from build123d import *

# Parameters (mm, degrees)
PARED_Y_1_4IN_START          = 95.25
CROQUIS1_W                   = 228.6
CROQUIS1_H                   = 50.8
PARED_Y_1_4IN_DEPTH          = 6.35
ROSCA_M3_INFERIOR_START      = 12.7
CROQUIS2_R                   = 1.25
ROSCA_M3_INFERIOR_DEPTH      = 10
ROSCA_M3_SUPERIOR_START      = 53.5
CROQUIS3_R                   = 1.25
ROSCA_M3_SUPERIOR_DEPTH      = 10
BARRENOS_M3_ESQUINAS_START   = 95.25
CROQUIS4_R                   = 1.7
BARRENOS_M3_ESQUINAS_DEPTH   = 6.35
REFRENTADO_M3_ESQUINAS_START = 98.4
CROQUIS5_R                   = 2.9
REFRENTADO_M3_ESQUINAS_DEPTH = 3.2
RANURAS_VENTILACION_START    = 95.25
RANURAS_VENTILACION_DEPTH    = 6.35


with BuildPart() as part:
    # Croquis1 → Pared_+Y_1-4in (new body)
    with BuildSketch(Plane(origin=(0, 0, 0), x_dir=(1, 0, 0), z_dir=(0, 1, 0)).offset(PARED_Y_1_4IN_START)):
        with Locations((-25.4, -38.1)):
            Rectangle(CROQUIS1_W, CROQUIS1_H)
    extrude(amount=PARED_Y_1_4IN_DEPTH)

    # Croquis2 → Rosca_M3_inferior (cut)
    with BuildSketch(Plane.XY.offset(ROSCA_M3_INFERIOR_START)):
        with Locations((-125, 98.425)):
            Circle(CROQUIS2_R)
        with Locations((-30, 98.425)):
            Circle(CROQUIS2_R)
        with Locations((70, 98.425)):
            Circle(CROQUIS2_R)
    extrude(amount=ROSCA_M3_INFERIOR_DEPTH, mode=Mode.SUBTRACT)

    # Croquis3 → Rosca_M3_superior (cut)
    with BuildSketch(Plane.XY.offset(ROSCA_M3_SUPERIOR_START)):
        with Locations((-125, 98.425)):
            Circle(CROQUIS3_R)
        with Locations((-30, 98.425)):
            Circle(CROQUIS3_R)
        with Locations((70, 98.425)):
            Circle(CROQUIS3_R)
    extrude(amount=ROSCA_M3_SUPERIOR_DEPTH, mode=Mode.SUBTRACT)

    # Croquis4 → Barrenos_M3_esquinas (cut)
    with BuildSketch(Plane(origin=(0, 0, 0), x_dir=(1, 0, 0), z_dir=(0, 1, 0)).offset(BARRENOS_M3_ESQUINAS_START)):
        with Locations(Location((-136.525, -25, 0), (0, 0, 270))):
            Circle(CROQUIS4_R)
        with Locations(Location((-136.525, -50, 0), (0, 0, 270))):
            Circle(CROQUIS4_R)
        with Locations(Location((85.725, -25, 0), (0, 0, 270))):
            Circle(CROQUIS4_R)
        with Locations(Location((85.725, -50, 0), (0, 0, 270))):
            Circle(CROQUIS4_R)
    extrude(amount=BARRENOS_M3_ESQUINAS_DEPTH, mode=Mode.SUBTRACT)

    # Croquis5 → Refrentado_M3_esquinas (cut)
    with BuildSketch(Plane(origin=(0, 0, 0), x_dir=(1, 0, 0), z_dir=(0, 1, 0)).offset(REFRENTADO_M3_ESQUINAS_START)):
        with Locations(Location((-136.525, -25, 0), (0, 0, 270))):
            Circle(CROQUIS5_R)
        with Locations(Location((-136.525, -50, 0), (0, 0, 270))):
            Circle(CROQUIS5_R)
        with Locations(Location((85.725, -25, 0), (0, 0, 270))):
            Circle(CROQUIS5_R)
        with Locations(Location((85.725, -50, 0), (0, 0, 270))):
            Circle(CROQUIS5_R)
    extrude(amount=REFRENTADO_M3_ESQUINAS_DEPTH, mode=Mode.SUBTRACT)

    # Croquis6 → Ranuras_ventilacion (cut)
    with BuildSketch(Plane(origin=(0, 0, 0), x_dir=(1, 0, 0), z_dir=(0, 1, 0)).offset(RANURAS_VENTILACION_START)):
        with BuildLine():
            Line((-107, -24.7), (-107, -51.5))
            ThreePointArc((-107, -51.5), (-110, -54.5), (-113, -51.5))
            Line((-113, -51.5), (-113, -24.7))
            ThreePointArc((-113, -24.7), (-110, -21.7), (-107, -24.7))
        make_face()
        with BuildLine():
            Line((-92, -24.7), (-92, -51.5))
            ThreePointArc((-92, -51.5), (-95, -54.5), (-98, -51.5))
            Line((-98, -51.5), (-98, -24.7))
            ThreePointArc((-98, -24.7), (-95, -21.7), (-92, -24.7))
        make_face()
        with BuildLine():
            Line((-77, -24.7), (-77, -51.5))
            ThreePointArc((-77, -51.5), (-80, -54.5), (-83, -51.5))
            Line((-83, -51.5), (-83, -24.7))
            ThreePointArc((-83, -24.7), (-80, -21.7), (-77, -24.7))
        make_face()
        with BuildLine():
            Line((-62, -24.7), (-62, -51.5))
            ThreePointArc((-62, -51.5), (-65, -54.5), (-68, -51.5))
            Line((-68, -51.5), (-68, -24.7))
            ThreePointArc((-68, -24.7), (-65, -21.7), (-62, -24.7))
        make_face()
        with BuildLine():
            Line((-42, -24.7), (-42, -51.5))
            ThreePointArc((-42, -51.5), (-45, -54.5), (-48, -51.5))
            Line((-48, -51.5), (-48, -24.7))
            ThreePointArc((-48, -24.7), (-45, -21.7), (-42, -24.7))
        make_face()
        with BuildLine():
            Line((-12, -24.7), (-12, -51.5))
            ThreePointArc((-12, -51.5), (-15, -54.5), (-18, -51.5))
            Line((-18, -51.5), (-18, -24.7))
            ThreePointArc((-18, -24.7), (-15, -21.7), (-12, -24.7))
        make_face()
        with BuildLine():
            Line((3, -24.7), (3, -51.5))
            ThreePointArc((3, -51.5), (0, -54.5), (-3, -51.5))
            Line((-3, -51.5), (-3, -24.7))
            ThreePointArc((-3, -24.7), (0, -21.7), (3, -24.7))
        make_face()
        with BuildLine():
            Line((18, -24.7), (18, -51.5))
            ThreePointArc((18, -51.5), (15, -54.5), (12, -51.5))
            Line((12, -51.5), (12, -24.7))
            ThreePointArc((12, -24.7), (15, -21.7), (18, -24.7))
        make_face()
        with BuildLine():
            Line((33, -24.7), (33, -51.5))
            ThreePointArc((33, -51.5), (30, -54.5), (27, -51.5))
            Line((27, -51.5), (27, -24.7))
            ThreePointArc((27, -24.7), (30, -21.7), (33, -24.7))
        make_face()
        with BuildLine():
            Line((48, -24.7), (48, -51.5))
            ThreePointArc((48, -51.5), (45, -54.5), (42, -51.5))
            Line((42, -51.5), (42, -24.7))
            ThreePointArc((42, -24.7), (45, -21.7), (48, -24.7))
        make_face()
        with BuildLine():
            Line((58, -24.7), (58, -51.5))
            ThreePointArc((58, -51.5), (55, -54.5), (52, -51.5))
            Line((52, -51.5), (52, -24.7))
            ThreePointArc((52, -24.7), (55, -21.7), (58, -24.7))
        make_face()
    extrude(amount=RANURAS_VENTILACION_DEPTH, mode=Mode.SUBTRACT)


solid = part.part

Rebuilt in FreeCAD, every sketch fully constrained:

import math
import FreeCAD as App
import Part
import Sketcher
Q = App.Units.Quantity

doc = App.newDocument("Part")
params = doc.addObject("Spreadsheet::Sheet", "Params")
for row, (alias, value) in enumerate([
    ("sketch1_width", "228.6 mm"),
    ("sketch1_height", "50.8 mm"),
    ("pad1_length", "6.35 mm"),
    ("sketch2_diameter", "2.5 mm"),
    ("pocket1_length", "10 mm"),
    ("sketch3_diameter", "2.5 mm"),
    ("pocket2_length", "10 mm"),
    ("sketch4_diameter", "3.4 mm"),
    ("pocket3_length", "6.35 mm"),
    ("sketch5_diameter", "5.8 mm"),
    ("pocket4_length", "3.2 mm"),
    ("sketch6_radius", "3 mm"),
    ("sketch6_height", "26.8 mm"),
    ("pocket5_length", "6.35 mm"),
], start=1):
    params.set(f"A{row}", alias)
    params.set(f"B{row}", "=" + value)
    params.setAlias(f"B{row}", alias)

body = doc.addObject("PartDesign::Body", "Body")

# Sketch on XZ plane
sketch1 = body.newObject("Sketcher::SketchObject", "Sketch")
sketch1.AttachmentSupport = (doc.getObject("XZ_Plane"), [""])
sketch1.MapMode = "FlatFace"
sketch1.AttachmentOffset = App.Placement(App.Vector(0, 0, -95.25), App.Rotation())
sketch1.addGeometry([
    Part.LineSegment(App.Vector(-140, 13, 0), App.Vector(-140, 64, 0)),
    Part.LineSegment(App.Vector(-140, 64, 0), App.Vector(89, 64, 0)),
    Part.LineSegment(App.Vector(89, 64, 0), App.Vector(89, 13, 0)),
    Part.LineSegment(App.Vector(89, 13, 0), App.Vector(-140, 13, 0)),
], False)
sketch1.addConstraint([
    Sketcher.Constraint("Coincident", 0, 2, 1, 1),
    Sketcher.Constraint("Coincident", 1, 2, 2, 1),
    Sketcher.Constraint("Coincident", 2, 2, 3, 1),
    Sketcher.Constraint("Coincident", 3, 2, 0, 1),
    Sketcher.Constraint("Vertical", 0),
    Sketcher.Constraint("Horizontal", 1),
    Sketcher.Constraint("Vertical", 2),
    Sketcher.Constraint("Horizontal", 3),
    Sketcher.Constraint("DistanceX", 1, 1, 1, 2, Q("228.6 mm")),
    Sketcher.Constraint("DistanceY", 0, 1, 0, 2, Q("50.8 mm")),
    Sketcher.Constraint("DistanceX", 0, 2, -1, 1, Q("139.7 mm")),
    Sketcher.Constraint("DistanceY", -1, 1, 0, 2, Q("63.5 mm")),
])
sketch1.setExpression("Constraints[8]", "Params.sketch1_width")
sketch1.setExpression("Constraints[9]", "Params.sketch1_height")
pad1 = body.newObject("PartDesign::Pad", "Pad")
pad1.Profile = sketch1
pad1.setExpression("Length", "Params.pad1_length")
pad1.Reversed = True

# Sketch on XY plane
sketch2 = body.newObject("Sketcher::SketchObject", "Sketch001")
sketch2.AttachmentSupport = (doc.getObject("XY_Plane"), [""])
sketch2.MapMode = "FlatFace"
sketch2.AttachmentOffset = App.Placement(App.Vector(0, 0, 12.7), App.Rotation())
sketch2.addGeometry([
    Part.Circle(App.Vector(-125, 98.4, 0), App.Vector(0, 0, 1), 1.2),
    Part.Circle(App.Vector(-30, 98.4, 0), App.Vector(0, 0, 1), 1.2),
    Part.Circle(App.Vector(70, 98.4, 0), App.Vector(0, 0, 1), 1.2),
], False)
sketch2.addConstraint([
    Sketcher.Constraint("Equal", 0, 1),
    Sketcher.Constraint("Equal", 1, 2),
    Sketcher.Constraint("Horizontal", 0, 3, 1, 3),
    Sketcher.Constraint("Horizontal", 1, 3, 2, 3),
    Sketcher.Constraint("Diameter", 0, Q("2.5 mm")),
    Sketcher.Constraint("DistanceX", 0, 3, -1, 1, Q("125 mm")),
    Sketcher.Constraint("DistanceX", 1, 3, -1, 1, Q("30 mm")),
    Sketcher.Constraint("DistanceX", -1, 1, 2, 3, Q("70 mm")),
    Sketcher.Constraint("DistanceY", -1, 1, 0, 3, Q("98.425 mm")),
])
sketch2.setExpression("Constraints[4]", "Params.sketch2_diameter")
pocket1 = body.newObject("PartDesign::Pocket", "Pocket")
pocket1.Profile = sketch2
pocket1.setExpression("Length", "Params.pocket1_length")
pocket1.Reversed = True

# Sketch on XY plane
sketch3 = body.newObject("Sketcher::SketchObject", "Sketch002")
sketch3.AttachmentSupport = (doc.getObject("XY_Plane"), [""])
sketch3.MapMode = "FlatFace"
sketch3.AttachmentOffset = App.Placement(App.Vector(0, 0, 53.5), App.Rotation())
sketch3.addGeometry([
    Part.Circle(App.Vector(-125, 98.4, 0), App.Vector(0, 0, 1), 1.2),
    Part.Circle(App.Vector(-30, 98.4, 0), App.Vector(0, 0, 1), 1.2),
    Part.Circle(App.Vector(70, 98.4, 0), App.Vector(0, 0, 1), 1.2),
], False)
sketch3.addConstraint([
    Sketcher.Constraint("Equal", 0, 1),
    Sketcher.Constraint("Equal", 1, 2),
    Sketcher.Constraint("Horizontal", 0, 3, 1, 3),
    Sketcher.Constraint("Horizontal", 1, 3, 2, 3),
    Sketcher.Constraint("Diameter", 0, Q("2.5 mm")),
    Sketcher.Constraint("DistanceX", 0, 3, -1, 1, Q("125 mm")),
    Sketcher.Constraint("DistanceX", 1, 3, -1, 1, Q("30 mm")),
    Sketcher.Constraint("DistanceX", -1, 1, 2, 3, Q("70 mm")),
    Sketcher.Constraint("DistanceY", -1, 1, 0, 3, Q("98.425 mm")),
])
sketch3.setExpression("Constraints[4]", "Params.sketch3_diameter")
pocket2 = body.newObject("PartDesign::Pocket", "Pocket001")
pocket2.Profile = sketch3
pocket2.setExpression("Length", "Params.pocket2_length")
pocket2.Reversed = True

# Sketch on XZ plane
sketch4 = body.newObject("Sketcher::SketchObject", "Sketch003")
sketch4.AttachmentSupport = (doc.getObject("XZ_Plane"), [""])
sketch4.MapMode = "FlatFace"
sketch4.AttachmentOffset = App.Placement(App.Vector(0, 0, -95.25), App.Rotation())
sketch4.addGeometry([
    Part.Circle(App.Vector(-136.5, 25, 0), App.Vector(0, 0, 1), 1.7),
    Part.Circle(App.Vector(-136.5, 50, 0), App.Vector(0, 0, 1), 1.7),
    Part.Circle(App.Vector(85.7, 25, 0), App.Vector(0, 0, 1), 1.7),
    Part.Circle(App.Vector(85.7, 50, 0), App.Vector(0, 0, 1), 1.7),
], False)
sketch4.addConstraint([
    Sketcher.Constraint("Equal", 0, 1),
    Sketcher.Constraint("Equal", 1, 2),
    Sketcher.Constraint("Equal", 2, 3),
    Sketcher.Constraint("Horizontal", 0, 3, 2, 3),
    Sketcher.Constraint("Horizontal", 1, 3, 3, 3),
    Sketcher.Constraint("Vertical", 0, 3, 1, 3),
    Sketcher.Constraint("Vertical", 2, 3, 3, 3),
    Sketcher.Constraint("Diameter", 0, Q("3.4 mm")),
    Sketcher.Constraint("DistanceY", -1, 1, 0, 3, Q("25 mm")),
    Sketcher.Constraint("DistanceY", -1, 1, 1, 3, Q("50 mm")),
    Sketcher.Constraint("DistanceX", 0, 3, 2, 3, Q("222.25 mm")),
    Sketcher.Constraint("DistanceX", 0, 3, -1, 1, Q("136.525 mm")),
])
sketch4.setExpression("Constraints[7]", "Params.sketch4_diameter")
pocket3 = body.newObject("PartDesign::Pocket", "Pocket002")
pocket3.Profile = sketch4
pocket3.setExpression("Length", "Params.pocket3_length")

# Sketch on XZ plane
sketch5 = body.newObject("Sketcher::SketchObject", "Sketch004")
sketch5.AttachmentSupport = (doc.getObject("XZ_Plane"), [""])
sketch5.MapMode = "FlatFace"
sketch5.AttachmentOffset = App.Placement(App.Vector(0, 0, -98.4), App.Rotation())
sketch5.addGeometry([
    Part.Circle(App.Vector(-136.5, 25, 0), App.Vector(0, 0, 1), 2.9),
    Part.Circle(App.Vector(-136.5, 50, 0), App.Vector(0, 0, 1), 2.9),
    Part.Circle(App.Vector(85.7, 25, 0), App.Vector(0, 0, 1), 2.9),
    Part.Circle(App.Vector(85.7, 50, 0), App.Vector(0, 0, 1), 2.9),
], False)
sketch5.addConstraint([
    Sketcher.Constraint("Equal", 0, 1),
    Sketcher.Constraint("Equal", 1, 2),
    Sketcher.Constraint("Equal", 2, 3),
    Sketcher.Constraint("Horizontal", 0, 3, 2, 3),
    Sketcher.Constraint("Horizontal", 1, 3, 3, 3),
    Sketcher.Constraint("Vertical", 0, 3, 1, 3),
    Sketcher.Constraint("Vertical", 2, 3, 3, 3),
    Sketcher.Constraint("Diameter", 0, Q("5.8 mm")),
    Sketcher.Constraint("DistanceY", -1, 1, 0, 3, Q("25 mm")),
    Sketcher.Constraint("DistanceY", -1, 1, 1, 3, Q("50 mm")),
    Sketcher.Constraint("DistanceX", 0, 3, 2, 3, Q("222.25 mm")),
    Sketcher.Constraint("DistanceX", 0, 3, -1, 1, Q("136.525 mm")),
])
sketch5.setExpression("Constraints[7]", "Params.sketch5_diameter")
pocket4 = body.newObject("PartDesign::Pocket", "Pocket003")
pocket4.Profile = sketch5
pocket4.setExpression("Length", "Params.pocket4_length")

# Sketch on XZ plane
sketch6 = body.newObject("Sketcher::SketchObject", "Sketch005")
sketch6.AttachmentSupport = (doc.getObject("XZ_Plane"), [""])
sketch6.MapMode = "FlatFace"
sketch6.AttachmentOffset = App.Placement(App.Vector(0, 0, -95.25), App.Rotation())
sketch6.addGeometry([
    Part.LineSegment(App.Vector(-107, 51.5, 0), App.Vector(-107, 24.7, 0)),  # 0
    Part.ArcOfCircle(Part.Circle(App.Vector(-110, 24.7, 0), App.Vector(0, 0, 1), 3), math.radians(180), math.radians(360)),  # 1
    Part.LineSegment(App.Vector(-113, 24.7, 0), App.Vector(-113, 51.5, 0)),  # 2
    Part.ArcOfCircle(Part.Circle(App.Vector(-110, 51.5, 0), App.Vector(0, 0, 1), 3), math.radians(0), math.radians(180)),  # 3
    Part.LineSegment(App.Vector(-92, 51.5, 0), App.Vector(-92, 24.7, 0)),  # 4
    Part.ArcOfCircle(Part.Circle(App.Vector(-95, 24.7, 0), App.Vector(0, 0, 1), 3), math.radians(180), math.radians(360)),  # 5
    Part.LineSegment(App.Vector(-98, 24.7, 0), App.Vector(-98, 51.5, 0)),  # 6
    Part.ArcOfCircle(Part.Circle(App.Vector(-95, 51.5, 0), App.Vector(0, 0, 1), 3), math.radians(0), math.radians(180)),  # 7
    Part.LineSegment(App.Vector(-77, 51.5, 0), App.Vector(-77, 24.7, 0)),  # 8
    Part.ArcOfCircle(Part.Circle(App.Vector(-80, 24.7, 0), App.Vector(0, 0, 1), 3), math.radians(180), math.radians(360)),  # 9
    Part.LineSegment(App.Vector(-83, 24.7, 0), App.Vector(-83, 51.5, 0)),  # 10
    Part.ArcOfCircle(Part.Circle(App.Vector(-80, 51.5, 0), App.Vector(0, 0, 1), 3), math.radians(0), math.radians(180)),  # 11
    Part.LineSegment(App.Vector(-62, 51.5, 0), App.Vector(-62, 24.7, 0)),  # 12
    Part.ArcOfCircle(Part.Circle(App.Vector(-65, 24.7, 0), App.Vector(0, 0, 1), 3), math.radians(180), math.radians(360)),  # 13
    Part.LineSegment(App.Vector(-68, 24.7, 0), App.Vector(-68, 51.5, 0)),  # 14
    Part.ArcOfCircle(Part.Circle(App.Vector(-65, 51.5, 0), App.Vector(0, 0, 1), 3), math.radians(0), math.radians(180)),  # 15
    Part.LineSegment(App.Vector(-42, 51.5, 0), App.Vector(-42, 24.7, 0)),  # 16
    Part.ArcOfCircle(Part.Circle(App.Vector(-45, 24.7, 0), App.Vector(0, 0, 1), 3), math.radians(180), math.radians(360)),  # 17
    Part.LineSegment(App.Vector(-48, 24.7, 0), App.Vector(-48, 51.5, 0)),  # 18
    Part.ArcOfCircle(Part.Circle(App.Vector(-45, 51.5, 0), App.Vector(0, 0, 1), 3), math.radians(0), math.radians(180)),  # 19
    Part.LineSegment(App.Vector(-12, 51.5, 0), App.Vector(-12, 24.7, 0)),  # 20
    Part.ArcOfCircle(Part.Circle(App.Vector(-15, 24.7, 0), App.Vector(0, 0, 1), 3), math.radians(180), math.radians(360)),  # 21
    Part.LineSegment(App.Vector(-18, 24.7, 0), App.Vector(-18, 51.5, 0)),  # 22
    Part.ArcOfCircle(Part.Circle(App.Vector(-15, 51.5, 0), App.Vector(0, 0, 1), 3), math.radians(0), math.radians(180)),  # 23
    Part.LineSegment(App.Vector(3, 51.5, 0), App.Vector(3, 24.7, 0)),  # 24
    Part.ArcOfCircle(Part.Circle(App.Vector(0, 24.7, 0), App.Vector(0, 0, 1), 3), math.radians(180), math.radians(360)),  # 25
    Part.LineSegment(App.Vector(-3, 24.7, 0), App.Vector(-3, 51.5, 0)),  # 26
    Part.ArcOfCircle(Part.Circle(App.Vector(0, 51.5, 0), App.Vector(0, 0, 1), 3), math.radians(0), math.radians(180)),  # 27
    Part.LineSegment(App.Vector(18, 51.5, 0), App.Vector(18, 24.7, 0)),  # 28
    Part.ArcOfCircle(Part.Circle(App.Vector(15, 24.7, 0), App.Vector(0, 0, 1), 3), math.radians(180), math.radians(360)),  # 29
    Part.LineSegment(App.Vector(12, 24.7, 0), App.Vector(12, 51.5, 0)),  # 30
    Part.ArcOfCircle(Part.Circle(App.Vector(15, 51.5, 0), App.Vector(0, 0, 1), 3), math.radians(0), math.radians(180)),  # 31
    Part.LineSegment(App.Vector(33, 51.5, 0), App.Vector(33, 24.7, 0)),  # 32
    Part.ArcOfCircle(Part.Circle(App.Vector(30, 24.7, 0), App.Vector(0, 0, 1), 3), math.radians(180), math.radians(360)),  # 33
    Part.LineSegment(App.Vector(27, 24.7, 0), App.Vector(27, 51.5, 0)),  # 34
    Part.ArcOfCircle(Part.Circle(App.Vector(30, 51.5, 0), App.Vector(0, 0, 1), 3), math.radians(0), math.radians(180)),  # 35
    Part.LineSegment(App.Vector(48, 51.5, 0), App.Vector(48, 24.7, 0)),  # 36
    Part.ArcOfCircle(Part.Circle(App.Vector(45, 24.7, 0), App.Vector(0, 0, 1), 3), math.radians(180), math.radians(360)),  # 37
    Part.LineSegment(App.Vector(42, 24.7, 0), App.Vector(42, 51.5, 0)),  # 38
    Part.ArcOfCircle(Part.Circle(App.Vector(45, 51.5, 0), App.Vector(0, 0, 1), 3), math.radians(0), math.radians(180)),  # 39
    Part.LineSegment(App.Vector(58, 51.5, 0), App.Vector(58, 24.7, 0)),  # 40
    Part.ArcOfCircle(Part.Circle(App.Vector(55, 24.7, 0), App.Vector(0, 0, 1), 3), math.radians(180), math.radians(360)),  # 41
    Part.LineSegment(App.Vector(52, 24.7, 0), App.Vector(52, 51.5, 0)),  # 42
    Part.ArcOfCircle(Part.Circle(App.Vector(55, 51.5, 0), App.Vector(0, 0, 1), 3), math.radians(0), math.radians(180)),  # 43
], False)
sketch6.addConstraint([
    Sketcher.Constraint("Tangent", 0, 2, 1, 2),
    Sketcher.Constraint("Tangent", 1, 1, 2, 1),
    Sketcher.Constraint("Tangent", 2, 2, 3, 2),
    Sketcher.Constraint("Tangent", 3, 1, 0, 1),
    Sketcher.Constraint("Tangent", 4, 2, 5, 2),
    Sketcher.Constraint("Tangent", 5, 1, 6, 1),
    Sketcher.Constraint("Tangent", 6, 2, 7, 2),
    Sketcher.Constraint("Tangent", 7, 1, 4, 1),
    Sketcher.Constraint("Tangent", 8, 2, 9, 2),
    Sketcher.Constraint("Tangent", 9, 1, 10, 1),
    Sketcher.Constraint("Tangent", 10, 2, 11, 2),
    Sketcher.Constraint("Tangent", 11, 1, 8, 1),
    Sketcher.Constraint("Tangent", 12, 2, 13, 2),
    Sketcher.Constraint("Tangent", 13, 1, 14, 1),
    Sketcher.Constraint("Tangent", 14, 2, 15, 2),
    Sketcher.Constraint("Tangent", 15, 1, 12, 1),
    Sketcher.Constraint("Tangent", 16, 2, 17, 2),
    Sketcher.Constraint("Tangent", 17, 1, 18, 1),
    Sketcher.Constraint("Tangent", 18, 2, 19, 2),
    Sketcher.Constraint("Tangent", 19, 1, 16, 1),
    Sketcher.Constraint("Tangent", 20, 2, 21, 2),
    Sketcher.Constraint("Tangent", 21, 1, 22, 1),
    Sketcher.Constraint("Tangent", 22, 2, 23, 2),
    Sketcher.Constraint("Tangent", 23, 1, 20, 1),
    Sketcher.Constraint("Tangent", 24, 2, 25, 2),
    Sketcher.Constraint("Tangent", 25, 1, 26, 1),
    Sketcher.Constraint("Tangent", 26, 2, 27, 2),
    Sketcher.Constraint("Tangent", 27, 1, 24, 1),
    Sketcher.Constraint("Tangent", 28, 2, 29, 2),
    Sketcher.Constraint("Tangent", 29, 1, 30, 1),
    Sketcher.Constraint("Tangent", 30, 2, 31, 2),
    Sketcher.Constraint("Tangent", 31, 1, 28, 1),
    Sketcher.Constraint("Tangent", 32, 2, 33, 2),
    Sketcher.Constraint("Tangent", 33, 1, 34, 1),
    Sketcher.Constraint("Tangent", 34, 2, 35, 2),
    Sketcher.Constraint("Tangent", 35, 1, 32, 1),
    Sketcher.Constraint("Tangent", 36, 2, 37, 2),
    Sketcher.Constraint("Tangent", 37, 1, 38, 1),
    Sketcher.Constraint("Tangent", 38, 2, 39, 2),
    Sketcher.Constraint("Tangent", 39, 1, 36, 1),
    Sketcher.Constraint("Tangent", 40, 2, 41, 2),
    Sketcher.Constraint("Tangent", 41, 1, 42, 1),
    Sketcher.Constraint("Tangent", 42, 2, 43, 2),
    Sketcher.Constraint("Tangent", 43, 1, 40, 1),
    Sketcher.Constraint("Vertical", 0),
    Sketcher.Constraint("Vertical", 2),
    Sketcher.Constraint("Vertical", 4),
    Sketcher.Constraint("Vertical", 6),
    Sketcher.Constraint("Vertical", 8),
    Sketcher.Constraint("Vertical", 10),
    Sketcher.Constraint("Vertical", 12),
    Sketcher.Constraint("Vertical", 14),
    Sketcher.Constraint("Vertical", 16),
    Sketcher.Constraint("Vertical", 18),
    Sketcher.Constraint("Vertical", 20),
    Sketcher.Constraint("Vertical", 22),
    Sketcher.Constraint("Vertical", 24),
    Sketcher.Constraint("Vertical", 26),
    Sketcher.Constraint("Vertical", 28),
    Sketcher.Constraint("Vertical", 30),
    Sketcher.Constraint("Vertical", 32),
    Sketcher.Constraint("Vertical", 34),
    Sketcher.Constraint("Vertical", 36),
    Sketcher.Constraint("Vertical", 38),
    Sketcher.Constraint("Vertical", 40),
    Sketcher.Constraint("Vertical", 42),
    Sketcher.Constraint("Equal", 3, 5),
    Sketcher.Constraint("Equal", 7, 9),
    Sketcher.Constraint("Equal", 11, 13),
    Sketcher.Constraint("Equal", 15, 17),
    Sketcher.Constraint("Equal", 19, 21),
    Sketcher.Constraint("Equal", 23, 25),
    Sketcher.Constraint("Equal", 27, 29),
    Sketcher.Constraint("Equal", 31, 33),
    Sketcher.Constraint("Equal", 35, 37),
    Sketcher.Constraint("Equal", 39, 41),
    Sketcher.Constraint("Symmetric", 21, 3, 29, 3, -2),
    Sketcher.Constraint("Symmetric", 17, 3, 37, 3, -2),
    Sketcher.Constraint("PointOnObject", 25, 3, -2),
    Sketcher.Constraint("Horizontal", 1, 3, 5, 3),
    Sketcher.Constraint("Horizontal", 3, 3, 7, 3),
    Sketcher.Constraint("Horizontal", 5, 3, 9, 3),
    Sketcher.Constraint("Horizontal", 7, 3, 11, 3),
    Sketcher.Constraint("Horizontal", 9, 3, 13, 3),
    Sketcher.Constraint("Horizontal", 11, 3, 15, 3),
    Sketcher.Constraint("Horizontal", 13, 3, 17, 3),
    Sketcher.Constraint("Horizontal", 15, 3, 19, 3),
    Sketcher.Constraint("Horizontal", 17, 3, 21, 3),
    Sketcher.Constraint("Horizontal", 19, 3, 23, 3),
    Sketcher.Constraint("Horizontal", 21, 3, 25, 3),
    Sketcher.Constraint("Horizontal", 23, 3, 27, 3),
    Sketcher.Constraint("Horizontal", 27, 3, 31, 3),
    Sketcher.Constraint("Horizontal", 29, 3, 33, 3),
    Sketcher.Constraint("Horizontal", 31, 3, 35, 3),
    Sketcher.Constraint("Horizontal", 35, 3, 39, 3),
    Sketcher.Constraint("Horizontal", 37, 3, 41, 3),
    Sketcher.Constraint("Horizontal", 39, 3, 43, 3),
    Sketcher.Constraint("Radius", 1, Q("3 mm")),
    Sketcher.Constraint("DistanceY", 0, 2, 0, 1, Q("26.8 mm")),
    Sketcher.Constraint("DistanceX", 1, 3, -1, 1, Q("110 mm")),
    Sketcher.Constraint("DistanceX", 5, 3, -1, 1, Q("95 mm")),
    Sketcher.Constraint("DistanceX", 9, 3, -1, 1, Q("80 mm")),
    Sketcher.Constraint("DistanceX", 13, 3, -1, 1, Q("65 mm")),
    Sketcher.Constraint("DistanceX", 17, 3, -1, 1, Q("45 mm")),
    Sketcher.Constraint("DistanceX", 21, 3, -1, 1, Q("15 mm")),
    Sketcher.Constraint("DistanceX", -1, 1, 33, 3, Q("30 mm")),
    Sketcher.Constraint("DistanceX", -1, 1, 41, 3, Q("55 mm")),
    Sketcher.Constraint("DistanceY", -1, 1, 1, 3, Q("24.7 mm")),
])
sketch6.setExpression("Constraints[97]", "Params.sketch6_radius")
sketch6.setExpression("Constraints[98]", "Params.sketch6_height")
pocket5 = body.newObject("PartDesign::Pocket", "Pocket004")
pocket5.Profile = sketch6
pocket5.setExpression("Length", "Params.pocket5_length")

doc.recompute()
